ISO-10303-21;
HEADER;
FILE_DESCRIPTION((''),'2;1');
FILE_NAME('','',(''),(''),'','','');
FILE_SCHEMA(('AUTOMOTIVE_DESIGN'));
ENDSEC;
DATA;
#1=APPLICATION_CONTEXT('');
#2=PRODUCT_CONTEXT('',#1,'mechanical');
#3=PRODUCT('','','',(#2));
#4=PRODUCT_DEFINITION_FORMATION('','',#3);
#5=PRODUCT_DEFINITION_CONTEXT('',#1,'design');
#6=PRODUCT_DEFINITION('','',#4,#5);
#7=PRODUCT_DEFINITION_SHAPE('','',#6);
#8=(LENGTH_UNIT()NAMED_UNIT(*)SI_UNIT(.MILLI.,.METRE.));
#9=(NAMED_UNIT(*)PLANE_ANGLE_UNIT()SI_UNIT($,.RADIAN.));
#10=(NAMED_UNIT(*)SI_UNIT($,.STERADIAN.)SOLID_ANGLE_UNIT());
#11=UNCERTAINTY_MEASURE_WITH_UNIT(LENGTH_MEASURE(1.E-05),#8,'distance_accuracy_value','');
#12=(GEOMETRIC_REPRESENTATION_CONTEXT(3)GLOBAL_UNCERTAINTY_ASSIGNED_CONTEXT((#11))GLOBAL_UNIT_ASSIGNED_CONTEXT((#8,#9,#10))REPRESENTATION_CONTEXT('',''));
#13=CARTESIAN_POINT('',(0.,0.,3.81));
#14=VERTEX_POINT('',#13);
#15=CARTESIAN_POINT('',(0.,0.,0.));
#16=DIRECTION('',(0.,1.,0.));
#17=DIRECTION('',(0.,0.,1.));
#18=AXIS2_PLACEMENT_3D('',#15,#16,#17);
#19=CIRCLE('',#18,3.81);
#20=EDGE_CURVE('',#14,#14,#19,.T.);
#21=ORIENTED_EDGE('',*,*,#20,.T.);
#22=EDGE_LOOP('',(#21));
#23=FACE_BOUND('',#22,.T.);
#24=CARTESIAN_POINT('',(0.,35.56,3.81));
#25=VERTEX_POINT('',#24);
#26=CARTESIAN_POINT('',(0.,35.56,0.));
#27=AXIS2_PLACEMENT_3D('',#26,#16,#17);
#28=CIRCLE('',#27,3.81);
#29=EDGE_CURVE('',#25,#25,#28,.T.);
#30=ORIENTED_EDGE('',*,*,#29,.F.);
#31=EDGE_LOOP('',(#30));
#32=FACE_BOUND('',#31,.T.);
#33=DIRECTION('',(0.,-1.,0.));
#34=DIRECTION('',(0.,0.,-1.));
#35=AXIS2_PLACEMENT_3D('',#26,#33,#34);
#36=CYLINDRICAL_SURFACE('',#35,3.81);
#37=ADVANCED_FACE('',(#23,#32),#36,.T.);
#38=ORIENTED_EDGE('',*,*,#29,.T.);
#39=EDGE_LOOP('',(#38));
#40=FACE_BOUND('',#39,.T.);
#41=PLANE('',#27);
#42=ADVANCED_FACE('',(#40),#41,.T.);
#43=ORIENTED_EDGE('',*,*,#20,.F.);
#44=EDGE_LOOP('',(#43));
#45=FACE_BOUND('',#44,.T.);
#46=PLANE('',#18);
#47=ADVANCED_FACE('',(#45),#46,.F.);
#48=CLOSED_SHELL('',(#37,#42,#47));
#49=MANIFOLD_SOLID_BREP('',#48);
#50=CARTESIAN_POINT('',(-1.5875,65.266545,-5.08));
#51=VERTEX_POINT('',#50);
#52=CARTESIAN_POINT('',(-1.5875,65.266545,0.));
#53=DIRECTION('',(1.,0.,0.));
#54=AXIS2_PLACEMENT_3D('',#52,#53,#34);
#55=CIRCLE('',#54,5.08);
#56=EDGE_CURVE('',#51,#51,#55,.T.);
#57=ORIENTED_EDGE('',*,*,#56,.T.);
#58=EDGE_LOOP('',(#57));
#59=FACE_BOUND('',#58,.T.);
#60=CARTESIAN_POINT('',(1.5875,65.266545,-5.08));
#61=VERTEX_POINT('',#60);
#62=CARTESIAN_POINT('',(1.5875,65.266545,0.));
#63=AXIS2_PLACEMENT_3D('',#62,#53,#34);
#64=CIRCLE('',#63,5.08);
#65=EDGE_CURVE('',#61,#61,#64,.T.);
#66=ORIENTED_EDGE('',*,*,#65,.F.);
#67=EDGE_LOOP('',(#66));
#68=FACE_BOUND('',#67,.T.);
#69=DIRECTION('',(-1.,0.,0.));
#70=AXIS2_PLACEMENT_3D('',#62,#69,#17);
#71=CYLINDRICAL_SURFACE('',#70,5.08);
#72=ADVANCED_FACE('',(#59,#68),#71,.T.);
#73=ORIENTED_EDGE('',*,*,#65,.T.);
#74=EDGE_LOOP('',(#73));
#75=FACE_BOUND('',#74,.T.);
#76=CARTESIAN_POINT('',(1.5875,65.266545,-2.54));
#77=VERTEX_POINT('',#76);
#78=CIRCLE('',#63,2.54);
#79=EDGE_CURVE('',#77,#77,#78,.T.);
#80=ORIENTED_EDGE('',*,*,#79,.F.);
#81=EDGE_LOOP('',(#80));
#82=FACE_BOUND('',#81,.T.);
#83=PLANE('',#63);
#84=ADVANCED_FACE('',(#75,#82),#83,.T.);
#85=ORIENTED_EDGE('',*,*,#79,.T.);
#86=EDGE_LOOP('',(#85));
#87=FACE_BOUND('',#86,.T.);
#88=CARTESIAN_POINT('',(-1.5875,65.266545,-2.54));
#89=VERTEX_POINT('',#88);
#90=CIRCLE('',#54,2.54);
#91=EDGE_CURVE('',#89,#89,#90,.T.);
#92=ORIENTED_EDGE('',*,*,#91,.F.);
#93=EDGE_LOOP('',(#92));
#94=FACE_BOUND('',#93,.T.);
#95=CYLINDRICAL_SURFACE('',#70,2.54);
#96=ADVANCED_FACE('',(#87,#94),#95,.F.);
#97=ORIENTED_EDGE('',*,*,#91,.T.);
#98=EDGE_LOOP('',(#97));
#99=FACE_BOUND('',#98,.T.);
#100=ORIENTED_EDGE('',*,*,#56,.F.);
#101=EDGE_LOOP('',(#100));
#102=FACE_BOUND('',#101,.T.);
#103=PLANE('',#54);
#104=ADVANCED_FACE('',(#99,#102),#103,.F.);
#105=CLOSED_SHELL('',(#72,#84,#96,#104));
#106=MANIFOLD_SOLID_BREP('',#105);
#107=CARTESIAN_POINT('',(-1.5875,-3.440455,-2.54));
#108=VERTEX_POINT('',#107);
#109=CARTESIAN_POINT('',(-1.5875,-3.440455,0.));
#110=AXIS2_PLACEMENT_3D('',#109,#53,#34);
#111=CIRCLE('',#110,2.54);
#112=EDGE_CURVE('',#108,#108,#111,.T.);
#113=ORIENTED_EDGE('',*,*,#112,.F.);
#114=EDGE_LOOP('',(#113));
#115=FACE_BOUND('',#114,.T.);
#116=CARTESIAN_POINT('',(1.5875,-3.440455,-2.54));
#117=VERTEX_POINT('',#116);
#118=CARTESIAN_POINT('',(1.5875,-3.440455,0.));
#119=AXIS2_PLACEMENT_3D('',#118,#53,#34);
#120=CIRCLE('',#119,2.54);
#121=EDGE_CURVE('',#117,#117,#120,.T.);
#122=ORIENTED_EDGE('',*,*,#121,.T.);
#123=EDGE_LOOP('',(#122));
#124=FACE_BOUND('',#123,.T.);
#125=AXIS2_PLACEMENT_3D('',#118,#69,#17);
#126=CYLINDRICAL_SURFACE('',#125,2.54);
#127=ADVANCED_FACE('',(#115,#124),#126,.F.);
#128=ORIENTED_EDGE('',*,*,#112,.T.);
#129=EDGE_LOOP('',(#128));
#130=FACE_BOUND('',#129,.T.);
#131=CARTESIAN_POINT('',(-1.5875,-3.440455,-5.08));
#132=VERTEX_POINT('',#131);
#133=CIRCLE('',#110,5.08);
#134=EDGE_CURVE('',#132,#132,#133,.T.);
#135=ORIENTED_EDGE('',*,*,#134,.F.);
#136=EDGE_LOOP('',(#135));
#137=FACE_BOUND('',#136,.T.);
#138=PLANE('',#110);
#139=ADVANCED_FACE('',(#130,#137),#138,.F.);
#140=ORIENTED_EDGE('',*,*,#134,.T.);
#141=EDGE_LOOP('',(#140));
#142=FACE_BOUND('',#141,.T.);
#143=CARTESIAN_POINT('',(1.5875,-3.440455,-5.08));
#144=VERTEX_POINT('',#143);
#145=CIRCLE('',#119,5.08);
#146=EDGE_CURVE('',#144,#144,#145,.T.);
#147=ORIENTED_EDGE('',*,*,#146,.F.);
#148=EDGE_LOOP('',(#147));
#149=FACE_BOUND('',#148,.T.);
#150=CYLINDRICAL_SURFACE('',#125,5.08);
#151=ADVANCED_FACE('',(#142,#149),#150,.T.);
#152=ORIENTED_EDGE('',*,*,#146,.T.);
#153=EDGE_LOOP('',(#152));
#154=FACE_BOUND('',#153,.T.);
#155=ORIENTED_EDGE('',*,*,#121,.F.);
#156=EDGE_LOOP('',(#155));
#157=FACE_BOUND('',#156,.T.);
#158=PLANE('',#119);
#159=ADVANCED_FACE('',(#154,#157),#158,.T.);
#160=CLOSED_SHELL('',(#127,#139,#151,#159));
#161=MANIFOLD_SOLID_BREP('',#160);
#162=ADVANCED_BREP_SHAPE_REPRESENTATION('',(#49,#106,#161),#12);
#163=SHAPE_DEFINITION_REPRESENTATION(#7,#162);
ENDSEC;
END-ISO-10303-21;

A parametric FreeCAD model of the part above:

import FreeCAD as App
import Part
import Sketcher
Q = App.Units.Quantity

doc = App.newDocument("Part")
body = doc.addObject("PartDesign::Body", "Body")

# Sketch on XZ plane
sketch1 = body.newObject("Sketcher::SketchObject", "Sketch")
sketch1.AttachmentSupport = (doc.getObject("XZ_Plane"), [""])
sketch1.MapMode = "FlatFace"
sketch1.addGeometry(Part.Circle(App.Vector(0, 0, 0), App.Vector(0, 0, 1), 3.8), False)
sketch1.addConstraint(Sketcher.Constraint("Coincident", 0, 3, -1, 1))
sketch1.addConstraint(Sketcher.Constraint("Diameter", 0, Q("0.3 in")))
pad1 = body.newObject("PartDesign::Pad", "Pad")
pad1.Profile = sketch1
pad1.Length = Q("1.4 in")
pad1.Reversed = True
body2 = doc.addObject("PartDesign::Body", "Body001")

# Sketch on YZ plane
sketch2 = body2.newObject("Sketcher::SketchObject", "Sketch001")
sketch2.AttachmentSupport = (doc.getObject("YZ_Plane001"), [""])
sketch2.MapMode = "FlatFace"
sketch2.addGeometry(Part.Circle(App.Vector(65.3, 0, 0), App.Vector(0, 0, 1), 5.1), False)
sketch2.addGeometry(Part.Circle(App.Vector(65.3, 0, 0), App.Vector(0, 0, 1), 2.5), False)
sketch2.addConstraint(Sketcher.Constraint("Coincident", 1, 3, 0, 3))
sketch2.addConstraint(Sketcher.Constraint("PointOnObject", 0, 3, -1))
sketch2.addConstraint(Sketcher.Constraint("Diameter", 0, Q("0.4 in")))
sketch2.addConstraint(Sketcher.Constraint("Diameter", 1, Q("0.2 in")))
sketch2.addConstraint(Sketcher.Constraint("DistanceX", -1, 1, 0, 3, Q("65.266545 mm")))
pad2 = body2.newObject("PartDesign::Pad", "Pad001")
pad2.Profile = sketch2
pad2.Length = Q("0.125 in")
pad2.Midplane = True
body3 = doc.addObject("PartDesign::Body", "Body002")

# Sketch on YZ plane
sketch3 = body3.newObject("Sketcher::SketchObject", "Sketch002")
sketch3.AttachmentSupport = (doc.getObject("YZ_Plane002"), [""])
sketch3.MapMode = "FlatFace"
sketch3.addGeometry(Part.Circle(App.Vector(-3.4, 0, 0), App.Vector(0, 0, 1), 5.1), False)
sketch3.addGeometry(Part.Circle(App.Vector(-3.4, 0, 0), App.Vector(0, 0, 1), 2.5), False)
sketch3.addConstraint(Sketcher.Constraint("Coincident", 1, 3, 0, 3))
sketch3.addConstraint(Sketcher.Constraint("PointOnObject", 0, 3, -1))
sketch3.addConstraint(Sketcher.Constraint("Diameter", 0, Q("0.4 in")))
sketch3.addConstraint(Sketcher.Constraint("Diameter", 1, Q("0.2 in")))
sketch3.addConstraint(Sketcher.Constraint("DistanceX", 0, 3, -1, 1, Q("3.440455 mm")))
pad3 = body3.newObject("PartDesign::Pad", "Pad002")
pad3.Profile = sketch3
pad3.Length = Q("0.125 in")
pad3.Midplane = True

doc.recompute()
